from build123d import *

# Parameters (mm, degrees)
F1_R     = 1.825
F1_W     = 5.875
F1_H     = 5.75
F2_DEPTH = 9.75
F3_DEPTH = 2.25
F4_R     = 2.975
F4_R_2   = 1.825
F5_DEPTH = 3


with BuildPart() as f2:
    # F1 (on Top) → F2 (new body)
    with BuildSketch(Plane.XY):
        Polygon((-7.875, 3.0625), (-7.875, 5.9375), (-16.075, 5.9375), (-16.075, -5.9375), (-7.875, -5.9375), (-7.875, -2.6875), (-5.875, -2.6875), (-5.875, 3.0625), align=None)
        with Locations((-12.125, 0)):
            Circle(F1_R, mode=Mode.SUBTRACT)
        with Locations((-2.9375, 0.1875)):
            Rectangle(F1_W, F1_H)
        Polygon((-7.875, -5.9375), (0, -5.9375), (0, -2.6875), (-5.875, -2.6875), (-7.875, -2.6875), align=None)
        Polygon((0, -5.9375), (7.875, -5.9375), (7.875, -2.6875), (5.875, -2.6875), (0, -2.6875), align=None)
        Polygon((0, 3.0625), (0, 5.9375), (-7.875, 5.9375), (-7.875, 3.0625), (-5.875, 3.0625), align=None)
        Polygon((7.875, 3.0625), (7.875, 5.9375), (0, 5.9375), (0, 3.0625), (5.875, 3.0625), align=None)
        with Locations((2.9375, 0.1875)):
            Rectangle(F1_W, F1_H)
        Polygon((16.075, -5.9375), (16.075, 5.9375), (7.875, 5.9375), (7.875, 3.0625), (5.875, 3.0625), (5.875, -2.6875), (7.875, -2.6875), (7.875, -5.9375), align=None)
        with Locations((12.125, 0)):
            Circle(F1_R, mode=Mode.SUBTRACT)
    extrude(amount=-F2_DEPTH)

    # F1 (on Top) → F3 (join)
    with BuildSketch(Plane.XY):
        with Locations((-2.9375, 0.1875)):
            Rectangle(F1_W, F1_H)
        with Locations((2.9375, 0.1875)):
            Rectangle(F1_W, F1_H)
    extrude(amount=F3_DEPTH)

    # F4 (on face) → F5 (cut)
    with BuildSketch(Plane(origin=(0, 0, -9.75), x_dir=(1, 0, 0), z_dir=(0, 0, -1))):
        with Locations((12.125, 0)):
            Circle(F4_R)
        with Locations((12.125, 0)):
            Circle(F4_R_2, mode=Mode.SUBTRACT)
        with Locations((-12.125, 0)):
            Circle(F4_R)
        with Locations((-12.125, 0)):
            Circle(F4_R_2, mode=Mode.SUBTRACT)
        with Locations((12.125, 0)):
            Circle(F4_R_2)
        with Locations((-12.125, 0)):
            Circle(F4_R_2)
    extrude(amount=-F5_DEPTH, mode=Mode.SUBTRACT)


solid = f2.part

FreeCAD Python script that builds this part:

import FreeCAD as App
import Part
import Sketcher
from FreeCAD import Vector

doc = App.newDocument("Part")
body = doc.addObject("PartDesign::Body", "Body")

sketch1 = body.newObject("Sketcher::SketchObject", "Sketch")
sketch1.AttachmentSupport = (doc.getObject("XY_Plane"), [""])
sketch1.MapMode = "FlatFace"
sketch1.addGeometry(Part.LineSegment(Vector(-16.1, 5.9, 0), Vector(-16.1, -5.9, 0)), False)
sketch1.addGeometry(Part.LineSegment(Vector(-16.1, -5.9, 0), Vector(16.1, -5.9, 0)), False)
sketch1.addGeometry(Part.LineSegment(Vector(16.1, -5.9, 0), Vector(16.1, 5.9, 0)), False)
sketch1.addGeometry(Part.LineSegment(Vector(16.1, 5.9, 0), Vector(-16.1, 5.9, 0)), False)
sketch1.addGeometry(Part.Circle(Vector(-12.1, 0, 0), Vector(0, 0, 1), 1.8), False)
sketch1.addGeometry(Part.Circle(Vector(12.1, 0, 0), Vector(0, 0, 1), 1.8), False)
sketch1.addConstraint(Sketcher.Constraint("Coincident", 0, 2, 1, 1))
sketch1.addConstraint(Sketcher.Constraint("Coincident", 1, 2, 2, 1))
sketch1.addConstraint(Sketcher.Constraint("Coincident", 2, 2, 3, 1))
sketch1.addConstraint(Sketcher.Constraint("Coincident", 3, 2, 0, 1))
sketch1.addConstraint(Sketcher.Constraint("Vertical", 0))
sketch1.addConstraint(Sketcher.Constraint("Horizontal", 1))
sketch1.addConstraint(Sketcher.Constraint("Vertical", 2))
sketch1.addConstraint(Sketcher.Constraint("Horizontal", 3))
sketch1.addConstraint(Sketcher.Constraint("Equal", 4, 5))
sketch1.addConstraint(Sketcher.Constraint("Symmetric", 4, 3, 5, 3, -1, 1))
sketch1.addConstraint(Sketcher.Constraint("Symmetric", 0, 2, 2, 2, -1, 1))
sketch1.addConstraint(Sketcher.Constraint("PointOnObject", 4, 3, -1))
sketch1.addConstraint(Sketcher.Constraint("Diameter", 4, 3.65))
sketch1.addConstraint(Sketcher.Constraint("DistanceX", 1, 1, 1, 2, 32.15))
sketch1.addConstraint(Sketcher.Constraint("DistanceX", 0, 2, 5, 3, 28.2))
sketch1.addConstraint(Sketcher.Constraint("DistanceY", 0, 2, 0, 1, 11.875))
pad1 = body.newObject("PartDesign::Pad", "Pad")
pad1.Profile = sketch1
pad1.Length = 9.75
pad1.Reversed = True

sketch2 = body.newObject("Sketcher::SketchObject", "Sketch001")
sketch2.AttachmentSupport = (doc.getObject("XY_Plane"), [""])
sketch2.MapMode = "FlatFace"
sketch2.addGeometry(Part.LineSegment(Vector(-6, 3, 0), Vector(-6, -3, 0)), False)
sketch2.addGeometry(Part.LineSegment(Vector(-6, -3, 0), Vector(6, -3, 0)), False)
sketch2.addGeometry(Part.LineSegment(Vector(6, -3, 0), Vector(6, 3, 0)), False)
sketch2.addGeometry(Part.LineSegment(Vector(6, 3, 0), Vector(-6, 3, 0)), False)
sketch2.addConstraint(Sketcher.Constraint("Coincident", 0, 2, 1, 1))
sketch2.addConstraint(Sketcher.Constraint("Coincident", 1, 2, 2, 1))
sketch2.addConstraint(Sketcher.Constraint("Coincident", 2, 2, 3, 1))
sketch2.addConstraint(Sketcher.Constraint("Coincident", 3, 2, 0, 1))
sketch2.addConstraint(Sketcher.Constraint("Vertical", 0))
sketch2.addConstraint(Sketcher.Constraint("Horizontal", 1))
sketch2.addConstraint(Sketcher.Constraint("Vertical", 2))
sketch2.addConstraint(Sketcher.Constraint("Horizontal", 3))
sketch2.addConstraint(Sketcher.Constraint("DistanceX", 1, 1, 1, 2, 11.75))
sketch2.addConstraint(Sketcher.Constraint("DistanceY", 0, 2, 0, 1, 5.75))
sketch2.addConstraint(Sketcher.Constraint("DistanceX", 0, 2, -1, 1, 5.875))
sketch2.addConstraint(Sketcher.Constraint("DistanceY", 0, 2, -1, 1, 2.6875))
pad2 = body.newObject("PartDesign::Pad", "Pad001")
pad2.Profile = sketch2
pad2.Length = 2.25

sketch3 = body.newObject("Sketcher::SketchObject", "Sketch002")
sketch3.AttachmentSupport = (doc.getObject("XY_Plane"), [""])
sketch3.MapMode = "FlatFace"
sketch3.AttachmentOffset = App.Placement(Vector(0, 0, -9.75), App.Rotation())
sketch3.addGeometry(Part.Circle(Vector(12.1, 0, 0), Vector(0, 0, 1), 3), False)
sketch3.addGeometry(Part.Circle(Vector(-12.1, 0, 0), Vector(0, 0, 1), 3), False)
sketch3.addConstraint(Sketcher.Constraint("Equal", 0, 1))
sketch3.addConstraint(Sketcher.Constraint("Symmetric", 0, 3, 1, 3, -1, 1))
sketch3.addConstraint(Sketcher.Constraint("PointOnObject", 0, 3, -1))
sketch3.addConstraint(Sketcher.Constraint("Diameter", 0, 5.95))
sketch3.addConstraint(Sketcher.Constraint("DistanceX", 1, 3, 0, 3, 24.25))
pocket1 = body.newObject("PartDesign::Pocket", "Pocket")
pocket1.Profile = sketch3
pocket1.Length = 3
pocket1.Reversed = True

doc.recompute()
